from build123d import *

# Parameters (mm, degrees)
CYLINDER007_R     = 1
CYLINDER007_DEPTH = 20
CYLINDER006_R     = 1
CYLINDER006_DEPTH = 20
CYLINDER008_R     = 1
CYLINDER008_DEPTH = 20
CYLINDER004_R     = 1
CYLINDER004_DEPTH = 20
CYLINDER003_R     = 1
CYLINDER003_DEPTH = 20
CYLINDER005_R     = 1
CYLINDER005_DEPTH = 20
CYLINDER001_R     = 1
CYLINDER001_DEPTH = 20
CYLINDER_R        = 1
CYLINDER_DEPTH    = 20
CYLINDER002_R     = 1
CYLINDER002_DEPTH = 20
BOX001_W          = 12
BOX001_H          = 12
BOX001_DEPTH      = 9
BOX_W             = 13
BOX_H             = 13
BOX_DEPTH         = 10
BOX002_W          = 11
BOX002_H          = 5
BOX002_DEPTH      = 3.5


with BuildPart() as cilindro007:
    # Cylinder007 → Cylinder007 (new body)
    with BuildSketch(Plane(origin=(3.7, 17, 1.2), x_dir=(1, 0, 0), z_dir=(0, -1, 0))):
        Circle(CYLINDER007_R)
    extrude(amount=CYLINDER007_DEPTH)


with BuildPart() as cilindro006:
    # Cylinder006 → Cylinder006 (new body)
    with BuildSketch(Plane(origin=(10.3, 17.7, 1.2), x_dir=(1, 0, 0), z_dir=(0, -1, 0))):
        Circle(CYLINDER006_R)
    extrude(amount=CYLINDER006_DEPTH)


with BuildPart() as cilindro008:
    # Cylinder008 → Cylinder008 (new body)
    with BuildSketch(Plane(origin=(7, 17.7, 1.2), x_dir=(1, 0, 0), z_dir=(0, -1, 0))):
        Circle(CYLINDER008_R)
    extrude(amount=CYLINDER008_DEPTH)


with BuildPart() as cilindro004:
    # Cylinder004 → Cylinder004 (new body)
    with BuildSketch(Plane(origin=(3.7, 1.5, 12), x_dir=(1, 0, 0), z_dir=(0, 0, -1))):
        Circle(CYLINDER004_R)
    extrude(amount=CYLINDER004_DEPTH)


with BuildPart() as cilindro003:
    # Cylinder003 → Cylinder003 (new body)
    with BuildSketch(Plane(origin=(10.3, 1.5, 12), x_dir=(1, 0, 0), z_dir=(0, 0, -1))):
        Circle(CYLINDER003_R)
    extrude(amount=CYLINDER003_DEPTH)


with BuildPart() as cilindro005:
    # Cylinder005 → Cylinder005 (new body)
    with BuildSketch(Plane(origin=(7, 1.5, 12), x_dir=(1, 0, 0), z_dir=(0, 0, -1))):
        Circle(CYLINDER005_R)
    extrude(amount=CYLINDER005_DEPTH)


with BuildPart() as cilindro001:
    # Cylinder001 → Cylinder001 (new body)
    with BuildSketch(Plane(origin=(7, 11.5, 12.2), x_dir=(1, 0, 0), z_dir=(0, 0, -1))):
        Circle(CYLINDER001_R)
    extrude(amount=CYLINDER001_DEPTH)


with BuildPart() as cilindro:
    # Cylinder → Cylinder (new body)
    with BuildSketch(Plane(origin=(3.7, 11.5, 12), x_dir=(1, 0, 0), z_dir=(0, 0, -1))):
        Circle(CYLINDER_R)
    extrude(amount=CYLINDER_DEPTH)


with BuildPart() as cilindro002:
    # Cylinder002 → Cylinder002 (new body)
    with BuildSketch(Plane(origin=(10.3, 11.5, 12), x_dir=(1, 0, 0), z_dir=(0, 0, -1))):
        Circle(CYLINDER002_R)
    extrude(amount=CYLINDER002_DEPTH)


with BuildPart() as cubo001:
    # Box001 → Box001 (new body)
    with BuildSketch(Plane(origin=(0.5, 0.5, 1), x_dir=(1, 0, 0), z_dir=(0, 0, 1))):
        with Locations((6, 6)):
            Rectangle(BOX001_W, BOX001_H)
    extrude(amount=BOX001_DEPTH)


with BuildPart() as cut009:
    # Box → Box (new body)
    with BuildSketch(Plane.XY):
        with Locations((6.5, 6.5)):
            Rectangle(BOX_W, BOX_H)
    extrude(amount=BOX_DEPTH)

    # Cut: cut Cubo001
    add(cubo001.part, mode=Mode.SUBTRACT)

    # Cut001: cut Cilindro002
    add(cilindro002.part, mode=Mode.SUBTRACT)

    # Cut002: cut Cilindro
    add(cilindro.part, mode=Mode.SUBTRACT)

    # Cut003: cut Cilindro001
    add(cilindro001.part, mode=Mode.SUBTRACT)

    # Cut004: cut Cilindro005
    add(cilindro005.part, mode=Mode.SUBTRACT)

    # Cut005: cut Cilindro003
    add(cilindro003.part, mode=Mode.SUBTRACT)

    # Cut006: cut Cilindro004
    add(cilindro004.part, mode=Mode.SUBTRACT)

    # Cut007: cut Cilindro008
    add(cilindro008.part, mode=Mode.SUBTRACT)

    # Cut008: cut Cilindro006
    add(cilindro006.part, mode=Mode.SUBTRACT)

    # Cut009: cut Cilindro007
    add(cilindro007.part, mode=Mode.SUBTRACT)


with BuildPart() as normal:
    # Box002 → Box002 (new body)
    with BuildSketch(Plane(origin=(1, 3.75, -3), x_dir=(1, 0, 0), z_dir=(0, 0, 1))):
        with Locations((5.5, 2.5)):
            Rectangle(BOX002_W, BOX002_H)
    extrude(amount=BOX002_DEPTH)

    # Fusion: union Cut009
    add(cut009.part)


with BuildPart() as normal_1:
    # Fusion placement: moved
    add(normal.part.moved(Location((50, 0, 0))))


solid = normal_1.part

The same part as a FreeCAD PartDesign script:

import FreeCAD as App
import Part
import Sketcher
from FreeCAD import Vector
Q = App.Units.Quantity

doc = App.newDocument("Part")
body = doc.addObject("PartDesign::Body", "Body")

# Sketch on XZ plane
sketch1 = body.newObject("Sketcher::SketchObject", "Sketch")
sketch1.AttachmentSupport = (doc.getObject("XZ_Plane"), [""])
sketch1.MapMode = "FlatFace"
sketch1.AttachmentOffset = App.Placement(Vector(0, 0, -17), App.Rotation())
sketch1.addGeometry(Part.Circle(Vector(3.7, 1.2, 0), Vector(0, 0, 1), 1), False)
sketch1.addConstraint([
    Sketcher.Constraint("Diameter", 0, Q("2 mm")),
    Sketcher.Constraint("DistanceX", -1, 1, 0, 3, Q("3.7 mm")),
    Sketcher.Constraint("DistanceY", -1, 1, 0, 3, Q("1.2 mm")),
])
pad1 = body.newObject("PartDesign::Pad", "Pad")
pad1.Profile = sketch1
pad1.Length = 20
body2 = doc.addObject("PartDesign::Body", "Body001")

# Sketch on XZ plane
sketch2 = body2.newObject("Sketcher::SketchObject", "Sketch001")
sketch2.AttachmentSupport = (doc.getObject("XZ_Plane001"), [""])
sketch2.MapMode = "FlatFace"
sketch2.AttachmentOffset = App.Placement(Vector(0, 0, -17.7), App.Rotation())
sketch2.addGeometry(Part.Circle(Vector(10.3, 1.2, 0), Vector(0, 0, 1), 1), False)
sketch2.addConstraint([
    Sketcher.Constraint("Diameter", 0, Q("2 mm")),
    Sketcher.Constraint("DistanceX", -1, 1, 0, 3, Q("10.3 mm")),
    Sketcher.Constraint("DistanceY", -1, 1, 0, 3, Q("1.2 mm")),
])
pad2 = body2.newObject("PartDesign::Pad", "Pad001")
pad2.Profile = sketch2
pad2.Length = 20
body3 = doc.addObject("PartDesign::Body", "Body002")

# Sketch on XZ plane
sketch3 = body3.newObject("Sketcher::SketchObject", "Sketch002")
sketch3.AttachmentSupport = (doc.getObject("XZ_Plane002"), [""])
sketch3.MapMode = "FlatFace"
sketch3.AttachmentOffset = App.Placement(Vector(0, 0, -17.7), App.Rotation())
sketch3.addGeometry(Part.Circle(Vector(7, 1.2, 0), Vector(0, 0, 1), 1), False)
sketch3.addConstraint([
    Sketcher.Constraint("Diameter", 0, Q("2 mm")),
    Sketcher.Constraint("DistanceX", -1, 1, 0, 3, Q("7 mm")),
    Sketcher.Constraint("DistanceY", -1, 1, 0, 3, Q("1.2 mm")),
])
pad3 = body3.newObject("PartDesign::Pad", "Pad002")
pad3.Profile = sketch3
pad3.Length = 20
body4 = doc.addObject("PartDesign::Body", "Body003")

# Sketch on XY plane
sketch4 = body4.newObject("Sketcher::SketchObject", "Sketch003")
sketch4.AttachmentSupport = (doc.getObject("XY_Plane003"), [""])
sketch4.MapMode = "FlatFace"
sketch4.AttachmentOffset = App.Placement(Vector(0, 0, 12), App.Rotation())
sketch4.addGeometry(Part.Circle(Vector(3.7, 1.5, 0), Vector(0, 0, 1), 1), False)
sketch4.addConstraint([
    Sketcher.Constraint("Diameter", 0, Q("2 mm")),
    Sketcher.Constraint("DistanceX", -1, 1, 0, 3, Q("3.7 mm")),
    Sketcher.Constraint("DistanceY", -1, 1, 0, 3, Q("1.5 mm")),
])
pad4 = body4.newObject("PartDesign::Pad", "Pad003")
pad4.Profile = sketch4
pad4.Length = 20
pad4.Reversed = True
body5 = doc.addObject("PartDesign::Body", "Body004")

# Sketch on XY plane
sketch5 = body5.newObject("Sketcher::SketchObject", "Sketch004")
sketch5.AttachmentSupport = (doc.getObject("XY_Plane004"), [""])
sketch5.MapMode = "FlatFace"
sketch5.AttachmentOffset = App.Placement(Vector(0, 0, 12), App.Rotation())
sketch5.addGeometry(Part.Circle(Vector(10.3, 1.5, 0), Vector(0, 0, 1), 1), False)
sketch5.addConstraint([
    Sketcher.Constraint("Diameter", 0, Q("2 mm")),
    Sketcher.Constraint("DistanceX", -1, 1, 0, 3, Q("10.3 mm")),
    Sketcher.Constraint("DistanceY", -1, 1, 0, 3, Q("1.5 mm")),
])
pad5 = body5.newObject("PartDesign::Pad", "Pad004")
pad5.Profile = sketch5
pad5.Length = 20
pad5.Reversed = True
body6 = doc.addObject("PartDesign::Body", "Body005")

# Sketch on XY plane
sketch6 = body6.newObject("Sketcher::SketchObject", "Sketch005")
sketch6.AttachmentSupport = (doc.getObject("XY_Plane005"), [""])
sketch6.MapMode = "FlatFace"
sketch6.AttachmentOffset = App.Placement(Vector(0, 0, 12), App.Rotation())
sketch6.addGeometry(Part.Circle(Vector(7, 1.5, 0), Vector(0, 0, 1), 1), False)
sketch6.addConstraint([
    Sketcher.Constraint("Diameter", 0, Q("2 mm")),
    Sketcher.Constraint("DistanceX", -1, 1, 0, 3, Q("7 mm")),
    Sketcher.Constraint("DistanceY", -1, 1, 0, 3, Q("1.5 mm")),
])
pad6 = body6.newObject("PartDesign::Pad", "Pad005")
pad6.Profile = sketch6
pad6.Length = 20
pad6.Reversed = True
body7 = doc.addObject("PartDesign::Body", "Body006")

# Sketch on XY plane
sketch7 = body7.newObject("Sketcher::SketchObject", "Sketch006")
sketch7.AttachmentSupport = (doc.getObject("XY_Plane006"), [""])
sketch7.MapMode = "FlatFace"
sketch7.AttachmentOffset = App.Placement(Vector(0, 0, 12.2), App.Rotation())
sketch7.addGeometry(Part.Circle(Vector(7, 11.5, 0), Vector(0, 0, 1), 1), False)
sketch7.addConstraint([
    Sketcher.Constraint("Diameter", 0, Q("2 mm")),
    Sketcher.Constraint("DistanceX", -1, 1, 0, 3, Q("7 mm")),
    Sketcher.Constraint("DistanceY", -1, 1, 0, 3, Q("11.5 mm")),
])
pad7 = body7.newObject("PartDesign::Pad", "Pad006")
pad7.Profile = sketch7
pad7.Length = 20
pad7.Reversed = True
body8 = doc.addObject("PartDesign::Body", "Body007")

# Sketch on XY plane
sketch8 = body8.newObject("Sketcher::SketchObject", "Sketch007")
sketch8.AttachmentSupport = (doc.getObject("XY_Plane007"), [""])
sketch8.MapMode = "FlatFace"
sketch8.AttachmentOffset = App.Placement(Vector(0, 0, 12), App.Rotation())
sketch8.addGeometry(Part.Circle(Vector(3.7, 11.5, 0), Vector(0, 0, 1), 1), False)
sketch8.addConstraint([
    Sketcher.Constraint("Diameter", 0, Q("2 mm")),
    Sketcher.Constraint("DistanceX", -1, 1, 0, 3, Q("3.7 mm")),
    Sketcher.Constraint("DistanceY", -1, 1, 0, 3, Q("11.5 mm")),
])
pad8 = body8.newObject("PartDesign::Pad", "Pad007")
pad8.Profile = sketch8
pad8.Length = 20
pad8.Reversed = True
body9 = doc.addObject("PartDesign::Body", "Body008")

# Sketch on XY plane
sketch9 = body9.newObject("Sketcher::SketchObject", "Sketch008")
sketch9.AttachmentSupport = (doc.getObject("XY_Plane008"), [""])
sketch9.MapMode = "FlatFace"
sketch9.AttachmentOffset = App.Placement(Vector(0, 0, 12), App.Rotation())
sketch9.addGeometry(Part.Circle(Vector(10.3, 11.5, 0), Vector(0, 0, 1), 1), False)
sketch9.addConstraint([
    Sketcher.Constraint("Diameter", 0, Q("2 mm")),
    Sketcher.Constraint("DistanceX", -1, 1, 0, 3, Q("10.3 mm")),
    Sketcher.Constraint("DistanceY", -1, 1, 0, 3, Q("11.5 mm")),
])
pad9 = body9.newObject("PartDesign::Pad", "Pad008")
pad9.Profile = sketch9
pad9.Length = 20
pad9.Reversed = True
body10 = doc.addObject("PartDesign::Body", "Body009")

# Sketch on XY plane
sketch10 = body10.newObject("Sketcher::SketchObject", "Sketch009")
sketch10.AttachmentSupport = (doc.getObject("XY_Plane009"), [""])
sketch10.MapMode = "FlatFace"
sketch10.AttachmentOffset = App.Placement(Vector(0, 0, 1), App.Rotation())
sketch10.addGeometry([
    Part.LineSegment(Vector(0, 12, 0), Vector(0, 0, 0)),
    Part.LineSegment(Vector(0, 0, 0), Vector(12, 0, 0)),
    Part.LineSegment(Vector(12, 0, 0), Vector(12, 12, 0)),
    Part.LineSegment(Vector(12, 12, 0), Vector(0, 12, 0)),
], False)
sketch10.addConstraint([
    Sketcher.Constraint("Coincident", 0, 2, 1, 1),
    Sketcher.Constraint("Coincident", 1, 2, 2, 1),
    Sketcher.Constraint("Coincident", 2, 2, 3, 1),
    Sketcher.Constraint("Coincident", 3, 2, 0, 1),
    Sketcher.Constraint("Vertical", 0),
    Sketcher.Constraint("Horizontal", 1),
    Sketcher.Constraint("Vertical", 2),
    Sketcher.Constraint("Horizontal", 3),
    Sketcher.Constraint("Equal", 3, 0),
    Sketcher.Constraint("DistanceX", 1, 1, 1, 2, Q("12 mm")),
    Sketcher.Constraint("DistanceX", -1, 1, 0, 2, Q("0.5 mm")),
    Sketcher.Constraint("DistanceY", -1, 1, 0, 2, Q("0.5 mm")),
])
pad10 = body10.newObject("PartDesign::Pad", "Pad009")
pad10.Profile = sketch10
pad10.Length = 9
body11 = doc.addObject("PartDesign::Body", "Body010")

# Sketch on XY plane
sketch11 = body11.newObject("Sketcher::SketchObject", "Sketch010")
sketch11.AttachmentSupport = (doc.getObject("XY_Plane010"), [""])
sketch11.MapMode = "FlatFace"
sketch11.addGeometry([
    Part.LineSegment(Vector(0, 13, 0), Vector(0, 0, 0)),
    Part.LineSegment(Vector(0, 0, 0), Vector(13, 0, 0)),
    Part.LineSegment(Vector(13, 0, 0), Vector(13, 13, 0)),
    Part.LineSegment(Vector(13, 13, 0), Vector(0, 13, 0)),
], False)
sketch11.addConstraint([
    Sketcher.Constraint("Coincident", 0, 2, 1, 1),
    Sketcher.Constraint("Coincident", 1, 2, 2, 1),
    Sketcher.Constraint("Coincident", 2, 2, 3, 1),
    Sketcher.Constraint("Coincident", 3, 2, 0, 1),
    Sketcher.Constraint("Vertical", 0),
    Sketcher.Constraint("Horizontal", 1),
    Sketcher.Constraint("Vertical", 2),
    Sketcher.Constraint("Horizontal", 3),
    Sketcher.Constraint("Coincident", 0, 2, -1, 1),
    Sketcher.Constraint("Equal", 3, 0),
    Sketcher.Constraint("DistanceX", 1, 1, 1, 2, Q("13 mm")),
])
pad11 = body11.newObject("PartDesign::Pad", "Pad010")
pad11.Profile = sketch11
pad11.Length = 10
doc.recompute()

boolean = body11.newObject("PartDesign::Boolean", "Boolean")
boolean.Type = "Cut"
boolean.addObjects([body10])
doc.recompute()

boolean2 = body11.newObject("PartDesign::Boolean", "Boolean001")
boolean2.Type = "Cut"
boolean2.addObjects([body9])
doc.recompute()

boolean3 = body11.newObject("PartDesign::Boolean", "Boolean002")
boolean3.Type = "Cut"
boolean3.addObjects([body8])
doc.recompute()

boolean4 = body11.newObject("PartDesign::Boolean", "Boolean003")
boolean4.Type = "Cut"
boolean4.addObjects([body7])
doc.recompute()

boolean5 = body11.newObject("PartDesign::Boolean", "Boolean004")
boolean5.Type = "Cut"
boolean5.addObjects([body6])
doc.recompute()

boolean6 = body11.newObject("PartDesign::Boolean", "Boolean005")
boolean6.Type = "Cut"
boolean6.addObjects([body5])
doc.recompute()

boolean7 = body11.newObject("PartDesign::Boolean", "Boolean006")
boolean7.Type = "Cut"
boolean7.addObjects([body4])
doc.recompute()

boolean8 = body11.newObject("PartDesign::Boolean", "Boolean007")
boolean8.Type = "Cut"
boolean8.addObjects([body3])
doc.recompute()

boolean9 = body11.newObject("PartDesign::Boolean", "Boolean008")
boolean9.Type = "Cut"
boolean9.addObjects([body2])
doc.recompute()

boolean10 = body11.newObject("PartDesign::Boolean", "Boolean009")
boolean10.Type = "Cut"
boolean10.addObjects([body])
body12 = doc.addObject("PartDesign::Body", "Body011")

# Sketch on XY plane
sketch12 = body12.newObject("Sketcher::SketchObject", "Sketch011")
sketch12.AttachmentSupport = (doc.getObject("XY_Plane011"), [""])
sketch12.MapMode = "FlatFace"
sketch12.AttachmentOffset = App.Placement(Vector(0, 0, -3), App.Rotation())
sketch12.addGeometry([
    Part.LineSegment(Vector(1, 9, 0), Vector(1, 4, 0)),
    Part.LineSegment(Vector(1, 4, 0), Vector(12, 4, 0)),
    Part.LineSegment(Vector(12, 4, 0), Vector(12, 9, 0)),
    Part.LineSegment(Vector(12, 9, 0), Vector(1, 9, 0)),
], False)
sketch12.addConstraint([
    Sketcher.Constraint("Coincident", 0, 2, 1, 1),
    Sketcher.Constraint("Coincident", 1, 2, 2, 1),
    Sketcher.Constraint("Coincident", 2, 2, 3, 1),
    Sketcher.Constraint("Coincident", 3, 2, 0, 1),
    Sketcher.Constraint("Vertical", 0),
    Sketcher.Constraint("Horizontal", 1),
    Sketcher.Constraint("Vertical", 2),
    Sketcher.Constraint("Horizontal", 3),
    Sketcher.Constraint("DistanceX", 1, 1, 1, 2, Q("11 mm")),
    Sketcher.Constraint("DistanceY", 0, 2, 0, 1, Q("5 mm")),
    Sketcher.Constraint("DistanceX", -1, 1, 0, 2, Q("1 mm")),
    Sketcher.Constraint("DistanceY", -1, 1, 0, 2, Q("3.75 mm")),
])
pad12 = body12.newObject("PartDesign::Pad", "Pad011")
pad12.Profile = sketch12
pad12.Length = 3.5
doc.recompute()

boolean11 = body12.newObject("PartDesign::Boolean", "Boolean010")
boolean11.Type = "Fuse"
boolean11.addObjects([body11])
body13 = doc.addObject("PartDesign::Body", "Body012")
doc.recompute()

body12.Placement = App.Placement(Vector(50, 0, 0), App.Rotation(Vector(0, 0, 1), 0))
boolean12 = body13.newObject("PartDesign::Boolean", "Boolean011")
boolean12.Type = "Fuse"
boolean12.addObjects([body12])

doc.recompute()
